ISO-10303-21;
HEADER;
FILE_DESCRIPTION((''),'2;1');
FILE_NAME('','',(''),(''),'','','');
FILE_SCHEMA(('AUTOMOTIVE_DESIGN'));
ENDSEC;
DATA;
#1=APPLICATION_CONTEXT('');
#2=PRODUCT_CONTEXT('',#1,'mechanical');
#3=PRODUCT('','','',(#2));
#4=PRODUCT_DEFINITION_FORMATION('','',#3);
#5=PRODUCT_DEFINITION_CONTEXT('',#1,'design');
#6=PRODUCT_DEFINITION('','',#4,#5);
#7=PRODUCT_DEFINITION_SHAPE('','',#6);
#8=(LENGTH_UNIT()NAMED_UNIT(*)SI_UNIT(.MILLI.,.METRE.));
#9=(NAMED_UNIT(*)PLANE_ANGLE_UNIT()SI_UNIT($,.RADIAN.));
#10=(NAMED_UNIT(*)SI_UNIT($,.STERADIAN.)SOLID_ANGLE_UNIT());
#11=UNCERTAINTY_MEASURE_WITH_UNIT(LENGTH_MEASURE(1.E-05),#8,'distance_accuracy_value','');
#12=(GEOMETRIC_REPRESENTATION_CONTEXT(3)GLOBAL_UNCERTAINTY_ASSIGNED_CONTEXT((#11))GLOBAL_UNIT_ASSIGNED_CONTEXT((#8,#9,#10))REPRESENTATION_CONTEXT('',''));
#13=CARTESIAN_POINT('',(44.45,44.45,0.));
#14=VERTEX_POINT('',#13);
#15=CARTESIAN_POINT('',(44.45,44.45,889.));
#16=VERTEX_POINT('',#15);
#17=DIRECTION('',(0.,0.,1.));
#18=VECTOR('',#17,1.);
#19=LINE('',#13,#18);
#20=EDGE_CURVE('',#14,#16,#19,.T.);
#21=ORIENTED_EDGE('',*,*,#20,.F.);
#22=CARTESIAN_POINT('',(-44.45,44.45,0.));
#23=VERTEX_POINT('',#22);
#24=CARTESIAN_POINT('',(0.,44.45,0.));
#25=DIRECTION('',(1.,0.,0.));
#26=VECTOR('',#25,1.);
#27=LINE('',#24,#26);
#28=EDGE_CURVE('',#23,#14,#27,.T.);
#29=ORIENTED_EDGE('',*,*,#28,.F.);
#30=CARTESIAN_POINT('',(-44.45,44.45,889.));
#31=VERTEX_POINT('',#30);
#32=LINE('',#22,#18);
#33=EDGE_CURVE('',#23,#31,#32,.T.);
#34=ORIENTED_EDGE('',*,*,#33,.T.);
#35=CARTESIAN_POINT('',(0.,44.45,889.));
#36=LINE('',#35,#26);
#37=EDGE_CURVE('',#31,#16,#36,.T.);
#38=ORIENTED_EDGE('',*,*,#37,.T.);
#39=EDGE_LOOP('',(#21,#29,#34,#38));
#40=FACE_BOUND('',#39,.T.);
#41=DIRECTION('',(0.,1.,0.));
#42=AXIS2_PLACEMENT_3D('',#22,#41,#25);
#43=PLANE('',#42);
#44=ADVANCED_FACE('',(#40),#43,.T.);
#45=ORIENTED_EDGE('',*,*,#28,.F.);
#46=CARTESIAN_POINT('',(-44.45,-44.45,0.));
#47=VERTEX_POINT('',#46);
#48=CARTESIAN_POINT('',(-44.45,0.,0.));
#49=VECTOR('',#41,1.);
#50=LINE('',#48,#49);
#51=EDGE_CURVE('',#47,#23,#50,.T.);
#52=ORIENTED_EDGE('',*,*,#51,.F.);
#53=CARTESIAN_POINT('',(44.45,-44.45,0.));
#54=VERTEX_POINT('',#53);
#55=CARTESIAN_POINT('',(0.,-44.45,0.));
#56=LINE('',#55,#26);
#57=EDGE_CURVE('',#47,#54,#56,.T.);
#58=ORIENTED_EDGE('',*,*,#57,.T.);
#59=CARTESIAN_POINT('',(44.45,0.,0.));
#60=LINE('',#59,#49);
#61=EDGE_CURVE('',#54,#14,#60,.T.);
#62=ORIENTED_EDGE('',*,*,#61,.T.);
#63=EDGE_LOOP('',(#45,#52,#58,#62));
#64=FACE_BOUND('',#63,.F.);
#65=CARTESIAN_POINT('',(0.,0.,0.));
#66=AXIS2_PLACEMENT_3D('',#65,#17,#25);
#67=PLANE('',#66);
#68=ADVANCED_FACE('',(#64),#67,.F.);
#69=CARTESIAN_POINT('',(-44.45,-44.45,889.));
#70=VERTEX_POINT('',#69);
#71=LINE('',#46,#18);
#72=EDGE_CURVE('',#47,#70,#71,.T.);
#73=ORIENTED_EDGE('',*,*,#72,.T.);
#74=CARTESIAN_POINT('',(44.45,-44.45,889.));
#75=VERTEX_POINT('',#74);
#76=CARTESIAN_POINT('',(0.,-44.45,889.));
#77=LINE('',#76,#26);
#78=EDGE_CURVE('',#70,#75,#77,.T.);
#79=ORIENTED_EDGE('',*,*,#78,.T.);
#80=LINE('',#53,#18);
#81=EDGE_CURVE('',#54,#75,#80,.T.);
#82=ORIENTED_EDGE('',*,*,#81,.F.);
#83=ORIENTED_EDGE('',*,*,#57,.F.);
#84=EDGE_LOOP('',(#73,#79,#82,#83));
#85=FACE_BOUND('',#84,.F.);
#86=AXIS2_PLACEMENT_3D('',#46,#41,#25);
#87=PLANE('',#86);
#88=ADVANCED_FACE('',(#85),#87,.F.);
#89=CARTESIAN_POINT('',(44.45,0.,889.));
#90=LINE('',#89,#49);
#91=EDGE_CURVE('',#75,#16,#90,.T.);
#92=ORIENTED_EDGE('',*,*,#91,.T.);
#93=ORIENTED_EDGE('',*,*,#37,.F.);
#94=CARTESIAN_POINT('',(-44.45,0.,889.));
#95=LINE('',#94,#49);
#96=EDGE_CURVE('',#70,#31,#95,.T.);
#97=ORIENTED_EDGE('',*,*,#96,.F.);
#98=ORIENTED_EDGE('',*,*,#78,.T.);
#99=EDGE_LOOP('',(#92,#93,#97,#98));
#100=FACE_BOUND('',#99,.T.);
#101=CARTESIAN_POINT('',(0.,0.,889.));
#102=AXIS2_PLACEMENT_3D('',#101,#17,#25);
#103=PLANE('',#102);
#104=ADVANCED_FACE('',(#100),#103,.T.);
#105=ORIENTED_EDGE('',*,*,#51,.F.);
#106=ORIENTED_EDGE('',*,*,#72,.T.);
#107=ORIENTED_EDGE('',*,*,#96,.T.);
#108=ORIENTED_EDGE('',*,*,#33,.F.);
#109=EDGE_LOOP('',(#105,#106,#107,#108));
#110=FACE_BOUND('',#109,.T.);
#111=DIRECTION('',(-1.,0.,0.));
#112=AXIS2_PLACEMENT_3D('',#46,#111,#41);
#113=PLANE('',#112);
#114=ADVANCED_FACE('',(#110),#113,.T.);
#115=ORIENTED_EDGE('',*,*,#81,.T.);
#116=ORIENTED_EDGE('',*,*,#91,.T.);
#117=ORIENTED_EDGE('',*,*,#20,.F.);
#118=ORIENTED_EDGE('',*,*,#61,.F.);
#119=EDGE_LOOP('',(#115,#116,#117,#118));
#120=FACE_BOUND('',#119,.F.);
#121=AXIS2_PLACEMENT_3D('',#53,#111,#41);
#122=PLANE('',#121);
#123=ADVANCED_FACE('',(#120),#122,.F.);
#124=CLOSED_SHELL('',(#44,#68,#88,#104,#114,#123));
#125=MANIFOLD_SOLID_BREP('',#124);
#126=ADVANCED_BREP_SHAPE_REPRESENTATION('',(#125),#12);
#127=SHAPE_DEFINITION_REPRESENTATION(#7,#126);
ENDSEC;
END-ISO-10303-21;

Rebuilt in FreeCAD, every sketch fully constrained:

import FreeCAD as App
import Part
import Sketcher

V = App.Vector
Q = App.Units.Quantity


def add_polygon(sketch, points):
    """Adds a closed chain of lines whose ends are joined by coincident constraints."""
    first, n = sketch.GeometryCount, len(points)
    for a, b in zip(points, points[1:] + points[:1]):
        sketch.addGeometry(Part.LineSegment(App.Vector(*a, 0), App.Vector(*b, 0)), False)
    for i in range(n):
        sketch.addConstraint(Sketcher.Constraint("Coincident", first + i, 2, first + (i + 1) % n, 1))

doc = App.newDocument("Part")
body = doc.addObject("PartDesign::Body", "Body")

sketch1 = body.newObject("Sketcher::SketchObject", "Sketch")
sketch1.AttachmentSupport = (doc.getObject("XY_Plane"), [""])
sketch1.MapMode = "FlatFace"
add_polygon(sketch1, [(-44.45, 44.45), (-44.45, -44.45), (44.45, -44.45), (44.45, 44.45)])
sketch1.addConstraint(Sketcher.Constraint("Vertical", 0))
sketch1.addConstraint(Sketcher.Constraint("Horizontal", 1))
sketch1.addConstraint(Sketcher.Constraint("Vertical", 2))
sketch1.addConstraint(Sketcher.Constraint("Horizontal", 3))
sketch1.addConstraint(Sketcher.Constraint("Symmetric", 0, 2, 2, 2, -1, 1))
sketch1.addConstraint(Sketcher.Constraint("Equal", 3, 0))
sketch1.addConstraint(Sketcher.Constraint("DistanceX", 1, 1, 1, 2, Q("3.5 in")))
pad1 = body.newObject("PartDesign::Pad", "Pad")
pad1.Profile = sketch1
pad1.Length = Q("35 in")
body2 = doc.addObject("PartDesign::Body", "Body001")
doc.recompute()

body2.BaseFeature = body
doc.recompute()
body.Visibility = False

doc.recompute()
